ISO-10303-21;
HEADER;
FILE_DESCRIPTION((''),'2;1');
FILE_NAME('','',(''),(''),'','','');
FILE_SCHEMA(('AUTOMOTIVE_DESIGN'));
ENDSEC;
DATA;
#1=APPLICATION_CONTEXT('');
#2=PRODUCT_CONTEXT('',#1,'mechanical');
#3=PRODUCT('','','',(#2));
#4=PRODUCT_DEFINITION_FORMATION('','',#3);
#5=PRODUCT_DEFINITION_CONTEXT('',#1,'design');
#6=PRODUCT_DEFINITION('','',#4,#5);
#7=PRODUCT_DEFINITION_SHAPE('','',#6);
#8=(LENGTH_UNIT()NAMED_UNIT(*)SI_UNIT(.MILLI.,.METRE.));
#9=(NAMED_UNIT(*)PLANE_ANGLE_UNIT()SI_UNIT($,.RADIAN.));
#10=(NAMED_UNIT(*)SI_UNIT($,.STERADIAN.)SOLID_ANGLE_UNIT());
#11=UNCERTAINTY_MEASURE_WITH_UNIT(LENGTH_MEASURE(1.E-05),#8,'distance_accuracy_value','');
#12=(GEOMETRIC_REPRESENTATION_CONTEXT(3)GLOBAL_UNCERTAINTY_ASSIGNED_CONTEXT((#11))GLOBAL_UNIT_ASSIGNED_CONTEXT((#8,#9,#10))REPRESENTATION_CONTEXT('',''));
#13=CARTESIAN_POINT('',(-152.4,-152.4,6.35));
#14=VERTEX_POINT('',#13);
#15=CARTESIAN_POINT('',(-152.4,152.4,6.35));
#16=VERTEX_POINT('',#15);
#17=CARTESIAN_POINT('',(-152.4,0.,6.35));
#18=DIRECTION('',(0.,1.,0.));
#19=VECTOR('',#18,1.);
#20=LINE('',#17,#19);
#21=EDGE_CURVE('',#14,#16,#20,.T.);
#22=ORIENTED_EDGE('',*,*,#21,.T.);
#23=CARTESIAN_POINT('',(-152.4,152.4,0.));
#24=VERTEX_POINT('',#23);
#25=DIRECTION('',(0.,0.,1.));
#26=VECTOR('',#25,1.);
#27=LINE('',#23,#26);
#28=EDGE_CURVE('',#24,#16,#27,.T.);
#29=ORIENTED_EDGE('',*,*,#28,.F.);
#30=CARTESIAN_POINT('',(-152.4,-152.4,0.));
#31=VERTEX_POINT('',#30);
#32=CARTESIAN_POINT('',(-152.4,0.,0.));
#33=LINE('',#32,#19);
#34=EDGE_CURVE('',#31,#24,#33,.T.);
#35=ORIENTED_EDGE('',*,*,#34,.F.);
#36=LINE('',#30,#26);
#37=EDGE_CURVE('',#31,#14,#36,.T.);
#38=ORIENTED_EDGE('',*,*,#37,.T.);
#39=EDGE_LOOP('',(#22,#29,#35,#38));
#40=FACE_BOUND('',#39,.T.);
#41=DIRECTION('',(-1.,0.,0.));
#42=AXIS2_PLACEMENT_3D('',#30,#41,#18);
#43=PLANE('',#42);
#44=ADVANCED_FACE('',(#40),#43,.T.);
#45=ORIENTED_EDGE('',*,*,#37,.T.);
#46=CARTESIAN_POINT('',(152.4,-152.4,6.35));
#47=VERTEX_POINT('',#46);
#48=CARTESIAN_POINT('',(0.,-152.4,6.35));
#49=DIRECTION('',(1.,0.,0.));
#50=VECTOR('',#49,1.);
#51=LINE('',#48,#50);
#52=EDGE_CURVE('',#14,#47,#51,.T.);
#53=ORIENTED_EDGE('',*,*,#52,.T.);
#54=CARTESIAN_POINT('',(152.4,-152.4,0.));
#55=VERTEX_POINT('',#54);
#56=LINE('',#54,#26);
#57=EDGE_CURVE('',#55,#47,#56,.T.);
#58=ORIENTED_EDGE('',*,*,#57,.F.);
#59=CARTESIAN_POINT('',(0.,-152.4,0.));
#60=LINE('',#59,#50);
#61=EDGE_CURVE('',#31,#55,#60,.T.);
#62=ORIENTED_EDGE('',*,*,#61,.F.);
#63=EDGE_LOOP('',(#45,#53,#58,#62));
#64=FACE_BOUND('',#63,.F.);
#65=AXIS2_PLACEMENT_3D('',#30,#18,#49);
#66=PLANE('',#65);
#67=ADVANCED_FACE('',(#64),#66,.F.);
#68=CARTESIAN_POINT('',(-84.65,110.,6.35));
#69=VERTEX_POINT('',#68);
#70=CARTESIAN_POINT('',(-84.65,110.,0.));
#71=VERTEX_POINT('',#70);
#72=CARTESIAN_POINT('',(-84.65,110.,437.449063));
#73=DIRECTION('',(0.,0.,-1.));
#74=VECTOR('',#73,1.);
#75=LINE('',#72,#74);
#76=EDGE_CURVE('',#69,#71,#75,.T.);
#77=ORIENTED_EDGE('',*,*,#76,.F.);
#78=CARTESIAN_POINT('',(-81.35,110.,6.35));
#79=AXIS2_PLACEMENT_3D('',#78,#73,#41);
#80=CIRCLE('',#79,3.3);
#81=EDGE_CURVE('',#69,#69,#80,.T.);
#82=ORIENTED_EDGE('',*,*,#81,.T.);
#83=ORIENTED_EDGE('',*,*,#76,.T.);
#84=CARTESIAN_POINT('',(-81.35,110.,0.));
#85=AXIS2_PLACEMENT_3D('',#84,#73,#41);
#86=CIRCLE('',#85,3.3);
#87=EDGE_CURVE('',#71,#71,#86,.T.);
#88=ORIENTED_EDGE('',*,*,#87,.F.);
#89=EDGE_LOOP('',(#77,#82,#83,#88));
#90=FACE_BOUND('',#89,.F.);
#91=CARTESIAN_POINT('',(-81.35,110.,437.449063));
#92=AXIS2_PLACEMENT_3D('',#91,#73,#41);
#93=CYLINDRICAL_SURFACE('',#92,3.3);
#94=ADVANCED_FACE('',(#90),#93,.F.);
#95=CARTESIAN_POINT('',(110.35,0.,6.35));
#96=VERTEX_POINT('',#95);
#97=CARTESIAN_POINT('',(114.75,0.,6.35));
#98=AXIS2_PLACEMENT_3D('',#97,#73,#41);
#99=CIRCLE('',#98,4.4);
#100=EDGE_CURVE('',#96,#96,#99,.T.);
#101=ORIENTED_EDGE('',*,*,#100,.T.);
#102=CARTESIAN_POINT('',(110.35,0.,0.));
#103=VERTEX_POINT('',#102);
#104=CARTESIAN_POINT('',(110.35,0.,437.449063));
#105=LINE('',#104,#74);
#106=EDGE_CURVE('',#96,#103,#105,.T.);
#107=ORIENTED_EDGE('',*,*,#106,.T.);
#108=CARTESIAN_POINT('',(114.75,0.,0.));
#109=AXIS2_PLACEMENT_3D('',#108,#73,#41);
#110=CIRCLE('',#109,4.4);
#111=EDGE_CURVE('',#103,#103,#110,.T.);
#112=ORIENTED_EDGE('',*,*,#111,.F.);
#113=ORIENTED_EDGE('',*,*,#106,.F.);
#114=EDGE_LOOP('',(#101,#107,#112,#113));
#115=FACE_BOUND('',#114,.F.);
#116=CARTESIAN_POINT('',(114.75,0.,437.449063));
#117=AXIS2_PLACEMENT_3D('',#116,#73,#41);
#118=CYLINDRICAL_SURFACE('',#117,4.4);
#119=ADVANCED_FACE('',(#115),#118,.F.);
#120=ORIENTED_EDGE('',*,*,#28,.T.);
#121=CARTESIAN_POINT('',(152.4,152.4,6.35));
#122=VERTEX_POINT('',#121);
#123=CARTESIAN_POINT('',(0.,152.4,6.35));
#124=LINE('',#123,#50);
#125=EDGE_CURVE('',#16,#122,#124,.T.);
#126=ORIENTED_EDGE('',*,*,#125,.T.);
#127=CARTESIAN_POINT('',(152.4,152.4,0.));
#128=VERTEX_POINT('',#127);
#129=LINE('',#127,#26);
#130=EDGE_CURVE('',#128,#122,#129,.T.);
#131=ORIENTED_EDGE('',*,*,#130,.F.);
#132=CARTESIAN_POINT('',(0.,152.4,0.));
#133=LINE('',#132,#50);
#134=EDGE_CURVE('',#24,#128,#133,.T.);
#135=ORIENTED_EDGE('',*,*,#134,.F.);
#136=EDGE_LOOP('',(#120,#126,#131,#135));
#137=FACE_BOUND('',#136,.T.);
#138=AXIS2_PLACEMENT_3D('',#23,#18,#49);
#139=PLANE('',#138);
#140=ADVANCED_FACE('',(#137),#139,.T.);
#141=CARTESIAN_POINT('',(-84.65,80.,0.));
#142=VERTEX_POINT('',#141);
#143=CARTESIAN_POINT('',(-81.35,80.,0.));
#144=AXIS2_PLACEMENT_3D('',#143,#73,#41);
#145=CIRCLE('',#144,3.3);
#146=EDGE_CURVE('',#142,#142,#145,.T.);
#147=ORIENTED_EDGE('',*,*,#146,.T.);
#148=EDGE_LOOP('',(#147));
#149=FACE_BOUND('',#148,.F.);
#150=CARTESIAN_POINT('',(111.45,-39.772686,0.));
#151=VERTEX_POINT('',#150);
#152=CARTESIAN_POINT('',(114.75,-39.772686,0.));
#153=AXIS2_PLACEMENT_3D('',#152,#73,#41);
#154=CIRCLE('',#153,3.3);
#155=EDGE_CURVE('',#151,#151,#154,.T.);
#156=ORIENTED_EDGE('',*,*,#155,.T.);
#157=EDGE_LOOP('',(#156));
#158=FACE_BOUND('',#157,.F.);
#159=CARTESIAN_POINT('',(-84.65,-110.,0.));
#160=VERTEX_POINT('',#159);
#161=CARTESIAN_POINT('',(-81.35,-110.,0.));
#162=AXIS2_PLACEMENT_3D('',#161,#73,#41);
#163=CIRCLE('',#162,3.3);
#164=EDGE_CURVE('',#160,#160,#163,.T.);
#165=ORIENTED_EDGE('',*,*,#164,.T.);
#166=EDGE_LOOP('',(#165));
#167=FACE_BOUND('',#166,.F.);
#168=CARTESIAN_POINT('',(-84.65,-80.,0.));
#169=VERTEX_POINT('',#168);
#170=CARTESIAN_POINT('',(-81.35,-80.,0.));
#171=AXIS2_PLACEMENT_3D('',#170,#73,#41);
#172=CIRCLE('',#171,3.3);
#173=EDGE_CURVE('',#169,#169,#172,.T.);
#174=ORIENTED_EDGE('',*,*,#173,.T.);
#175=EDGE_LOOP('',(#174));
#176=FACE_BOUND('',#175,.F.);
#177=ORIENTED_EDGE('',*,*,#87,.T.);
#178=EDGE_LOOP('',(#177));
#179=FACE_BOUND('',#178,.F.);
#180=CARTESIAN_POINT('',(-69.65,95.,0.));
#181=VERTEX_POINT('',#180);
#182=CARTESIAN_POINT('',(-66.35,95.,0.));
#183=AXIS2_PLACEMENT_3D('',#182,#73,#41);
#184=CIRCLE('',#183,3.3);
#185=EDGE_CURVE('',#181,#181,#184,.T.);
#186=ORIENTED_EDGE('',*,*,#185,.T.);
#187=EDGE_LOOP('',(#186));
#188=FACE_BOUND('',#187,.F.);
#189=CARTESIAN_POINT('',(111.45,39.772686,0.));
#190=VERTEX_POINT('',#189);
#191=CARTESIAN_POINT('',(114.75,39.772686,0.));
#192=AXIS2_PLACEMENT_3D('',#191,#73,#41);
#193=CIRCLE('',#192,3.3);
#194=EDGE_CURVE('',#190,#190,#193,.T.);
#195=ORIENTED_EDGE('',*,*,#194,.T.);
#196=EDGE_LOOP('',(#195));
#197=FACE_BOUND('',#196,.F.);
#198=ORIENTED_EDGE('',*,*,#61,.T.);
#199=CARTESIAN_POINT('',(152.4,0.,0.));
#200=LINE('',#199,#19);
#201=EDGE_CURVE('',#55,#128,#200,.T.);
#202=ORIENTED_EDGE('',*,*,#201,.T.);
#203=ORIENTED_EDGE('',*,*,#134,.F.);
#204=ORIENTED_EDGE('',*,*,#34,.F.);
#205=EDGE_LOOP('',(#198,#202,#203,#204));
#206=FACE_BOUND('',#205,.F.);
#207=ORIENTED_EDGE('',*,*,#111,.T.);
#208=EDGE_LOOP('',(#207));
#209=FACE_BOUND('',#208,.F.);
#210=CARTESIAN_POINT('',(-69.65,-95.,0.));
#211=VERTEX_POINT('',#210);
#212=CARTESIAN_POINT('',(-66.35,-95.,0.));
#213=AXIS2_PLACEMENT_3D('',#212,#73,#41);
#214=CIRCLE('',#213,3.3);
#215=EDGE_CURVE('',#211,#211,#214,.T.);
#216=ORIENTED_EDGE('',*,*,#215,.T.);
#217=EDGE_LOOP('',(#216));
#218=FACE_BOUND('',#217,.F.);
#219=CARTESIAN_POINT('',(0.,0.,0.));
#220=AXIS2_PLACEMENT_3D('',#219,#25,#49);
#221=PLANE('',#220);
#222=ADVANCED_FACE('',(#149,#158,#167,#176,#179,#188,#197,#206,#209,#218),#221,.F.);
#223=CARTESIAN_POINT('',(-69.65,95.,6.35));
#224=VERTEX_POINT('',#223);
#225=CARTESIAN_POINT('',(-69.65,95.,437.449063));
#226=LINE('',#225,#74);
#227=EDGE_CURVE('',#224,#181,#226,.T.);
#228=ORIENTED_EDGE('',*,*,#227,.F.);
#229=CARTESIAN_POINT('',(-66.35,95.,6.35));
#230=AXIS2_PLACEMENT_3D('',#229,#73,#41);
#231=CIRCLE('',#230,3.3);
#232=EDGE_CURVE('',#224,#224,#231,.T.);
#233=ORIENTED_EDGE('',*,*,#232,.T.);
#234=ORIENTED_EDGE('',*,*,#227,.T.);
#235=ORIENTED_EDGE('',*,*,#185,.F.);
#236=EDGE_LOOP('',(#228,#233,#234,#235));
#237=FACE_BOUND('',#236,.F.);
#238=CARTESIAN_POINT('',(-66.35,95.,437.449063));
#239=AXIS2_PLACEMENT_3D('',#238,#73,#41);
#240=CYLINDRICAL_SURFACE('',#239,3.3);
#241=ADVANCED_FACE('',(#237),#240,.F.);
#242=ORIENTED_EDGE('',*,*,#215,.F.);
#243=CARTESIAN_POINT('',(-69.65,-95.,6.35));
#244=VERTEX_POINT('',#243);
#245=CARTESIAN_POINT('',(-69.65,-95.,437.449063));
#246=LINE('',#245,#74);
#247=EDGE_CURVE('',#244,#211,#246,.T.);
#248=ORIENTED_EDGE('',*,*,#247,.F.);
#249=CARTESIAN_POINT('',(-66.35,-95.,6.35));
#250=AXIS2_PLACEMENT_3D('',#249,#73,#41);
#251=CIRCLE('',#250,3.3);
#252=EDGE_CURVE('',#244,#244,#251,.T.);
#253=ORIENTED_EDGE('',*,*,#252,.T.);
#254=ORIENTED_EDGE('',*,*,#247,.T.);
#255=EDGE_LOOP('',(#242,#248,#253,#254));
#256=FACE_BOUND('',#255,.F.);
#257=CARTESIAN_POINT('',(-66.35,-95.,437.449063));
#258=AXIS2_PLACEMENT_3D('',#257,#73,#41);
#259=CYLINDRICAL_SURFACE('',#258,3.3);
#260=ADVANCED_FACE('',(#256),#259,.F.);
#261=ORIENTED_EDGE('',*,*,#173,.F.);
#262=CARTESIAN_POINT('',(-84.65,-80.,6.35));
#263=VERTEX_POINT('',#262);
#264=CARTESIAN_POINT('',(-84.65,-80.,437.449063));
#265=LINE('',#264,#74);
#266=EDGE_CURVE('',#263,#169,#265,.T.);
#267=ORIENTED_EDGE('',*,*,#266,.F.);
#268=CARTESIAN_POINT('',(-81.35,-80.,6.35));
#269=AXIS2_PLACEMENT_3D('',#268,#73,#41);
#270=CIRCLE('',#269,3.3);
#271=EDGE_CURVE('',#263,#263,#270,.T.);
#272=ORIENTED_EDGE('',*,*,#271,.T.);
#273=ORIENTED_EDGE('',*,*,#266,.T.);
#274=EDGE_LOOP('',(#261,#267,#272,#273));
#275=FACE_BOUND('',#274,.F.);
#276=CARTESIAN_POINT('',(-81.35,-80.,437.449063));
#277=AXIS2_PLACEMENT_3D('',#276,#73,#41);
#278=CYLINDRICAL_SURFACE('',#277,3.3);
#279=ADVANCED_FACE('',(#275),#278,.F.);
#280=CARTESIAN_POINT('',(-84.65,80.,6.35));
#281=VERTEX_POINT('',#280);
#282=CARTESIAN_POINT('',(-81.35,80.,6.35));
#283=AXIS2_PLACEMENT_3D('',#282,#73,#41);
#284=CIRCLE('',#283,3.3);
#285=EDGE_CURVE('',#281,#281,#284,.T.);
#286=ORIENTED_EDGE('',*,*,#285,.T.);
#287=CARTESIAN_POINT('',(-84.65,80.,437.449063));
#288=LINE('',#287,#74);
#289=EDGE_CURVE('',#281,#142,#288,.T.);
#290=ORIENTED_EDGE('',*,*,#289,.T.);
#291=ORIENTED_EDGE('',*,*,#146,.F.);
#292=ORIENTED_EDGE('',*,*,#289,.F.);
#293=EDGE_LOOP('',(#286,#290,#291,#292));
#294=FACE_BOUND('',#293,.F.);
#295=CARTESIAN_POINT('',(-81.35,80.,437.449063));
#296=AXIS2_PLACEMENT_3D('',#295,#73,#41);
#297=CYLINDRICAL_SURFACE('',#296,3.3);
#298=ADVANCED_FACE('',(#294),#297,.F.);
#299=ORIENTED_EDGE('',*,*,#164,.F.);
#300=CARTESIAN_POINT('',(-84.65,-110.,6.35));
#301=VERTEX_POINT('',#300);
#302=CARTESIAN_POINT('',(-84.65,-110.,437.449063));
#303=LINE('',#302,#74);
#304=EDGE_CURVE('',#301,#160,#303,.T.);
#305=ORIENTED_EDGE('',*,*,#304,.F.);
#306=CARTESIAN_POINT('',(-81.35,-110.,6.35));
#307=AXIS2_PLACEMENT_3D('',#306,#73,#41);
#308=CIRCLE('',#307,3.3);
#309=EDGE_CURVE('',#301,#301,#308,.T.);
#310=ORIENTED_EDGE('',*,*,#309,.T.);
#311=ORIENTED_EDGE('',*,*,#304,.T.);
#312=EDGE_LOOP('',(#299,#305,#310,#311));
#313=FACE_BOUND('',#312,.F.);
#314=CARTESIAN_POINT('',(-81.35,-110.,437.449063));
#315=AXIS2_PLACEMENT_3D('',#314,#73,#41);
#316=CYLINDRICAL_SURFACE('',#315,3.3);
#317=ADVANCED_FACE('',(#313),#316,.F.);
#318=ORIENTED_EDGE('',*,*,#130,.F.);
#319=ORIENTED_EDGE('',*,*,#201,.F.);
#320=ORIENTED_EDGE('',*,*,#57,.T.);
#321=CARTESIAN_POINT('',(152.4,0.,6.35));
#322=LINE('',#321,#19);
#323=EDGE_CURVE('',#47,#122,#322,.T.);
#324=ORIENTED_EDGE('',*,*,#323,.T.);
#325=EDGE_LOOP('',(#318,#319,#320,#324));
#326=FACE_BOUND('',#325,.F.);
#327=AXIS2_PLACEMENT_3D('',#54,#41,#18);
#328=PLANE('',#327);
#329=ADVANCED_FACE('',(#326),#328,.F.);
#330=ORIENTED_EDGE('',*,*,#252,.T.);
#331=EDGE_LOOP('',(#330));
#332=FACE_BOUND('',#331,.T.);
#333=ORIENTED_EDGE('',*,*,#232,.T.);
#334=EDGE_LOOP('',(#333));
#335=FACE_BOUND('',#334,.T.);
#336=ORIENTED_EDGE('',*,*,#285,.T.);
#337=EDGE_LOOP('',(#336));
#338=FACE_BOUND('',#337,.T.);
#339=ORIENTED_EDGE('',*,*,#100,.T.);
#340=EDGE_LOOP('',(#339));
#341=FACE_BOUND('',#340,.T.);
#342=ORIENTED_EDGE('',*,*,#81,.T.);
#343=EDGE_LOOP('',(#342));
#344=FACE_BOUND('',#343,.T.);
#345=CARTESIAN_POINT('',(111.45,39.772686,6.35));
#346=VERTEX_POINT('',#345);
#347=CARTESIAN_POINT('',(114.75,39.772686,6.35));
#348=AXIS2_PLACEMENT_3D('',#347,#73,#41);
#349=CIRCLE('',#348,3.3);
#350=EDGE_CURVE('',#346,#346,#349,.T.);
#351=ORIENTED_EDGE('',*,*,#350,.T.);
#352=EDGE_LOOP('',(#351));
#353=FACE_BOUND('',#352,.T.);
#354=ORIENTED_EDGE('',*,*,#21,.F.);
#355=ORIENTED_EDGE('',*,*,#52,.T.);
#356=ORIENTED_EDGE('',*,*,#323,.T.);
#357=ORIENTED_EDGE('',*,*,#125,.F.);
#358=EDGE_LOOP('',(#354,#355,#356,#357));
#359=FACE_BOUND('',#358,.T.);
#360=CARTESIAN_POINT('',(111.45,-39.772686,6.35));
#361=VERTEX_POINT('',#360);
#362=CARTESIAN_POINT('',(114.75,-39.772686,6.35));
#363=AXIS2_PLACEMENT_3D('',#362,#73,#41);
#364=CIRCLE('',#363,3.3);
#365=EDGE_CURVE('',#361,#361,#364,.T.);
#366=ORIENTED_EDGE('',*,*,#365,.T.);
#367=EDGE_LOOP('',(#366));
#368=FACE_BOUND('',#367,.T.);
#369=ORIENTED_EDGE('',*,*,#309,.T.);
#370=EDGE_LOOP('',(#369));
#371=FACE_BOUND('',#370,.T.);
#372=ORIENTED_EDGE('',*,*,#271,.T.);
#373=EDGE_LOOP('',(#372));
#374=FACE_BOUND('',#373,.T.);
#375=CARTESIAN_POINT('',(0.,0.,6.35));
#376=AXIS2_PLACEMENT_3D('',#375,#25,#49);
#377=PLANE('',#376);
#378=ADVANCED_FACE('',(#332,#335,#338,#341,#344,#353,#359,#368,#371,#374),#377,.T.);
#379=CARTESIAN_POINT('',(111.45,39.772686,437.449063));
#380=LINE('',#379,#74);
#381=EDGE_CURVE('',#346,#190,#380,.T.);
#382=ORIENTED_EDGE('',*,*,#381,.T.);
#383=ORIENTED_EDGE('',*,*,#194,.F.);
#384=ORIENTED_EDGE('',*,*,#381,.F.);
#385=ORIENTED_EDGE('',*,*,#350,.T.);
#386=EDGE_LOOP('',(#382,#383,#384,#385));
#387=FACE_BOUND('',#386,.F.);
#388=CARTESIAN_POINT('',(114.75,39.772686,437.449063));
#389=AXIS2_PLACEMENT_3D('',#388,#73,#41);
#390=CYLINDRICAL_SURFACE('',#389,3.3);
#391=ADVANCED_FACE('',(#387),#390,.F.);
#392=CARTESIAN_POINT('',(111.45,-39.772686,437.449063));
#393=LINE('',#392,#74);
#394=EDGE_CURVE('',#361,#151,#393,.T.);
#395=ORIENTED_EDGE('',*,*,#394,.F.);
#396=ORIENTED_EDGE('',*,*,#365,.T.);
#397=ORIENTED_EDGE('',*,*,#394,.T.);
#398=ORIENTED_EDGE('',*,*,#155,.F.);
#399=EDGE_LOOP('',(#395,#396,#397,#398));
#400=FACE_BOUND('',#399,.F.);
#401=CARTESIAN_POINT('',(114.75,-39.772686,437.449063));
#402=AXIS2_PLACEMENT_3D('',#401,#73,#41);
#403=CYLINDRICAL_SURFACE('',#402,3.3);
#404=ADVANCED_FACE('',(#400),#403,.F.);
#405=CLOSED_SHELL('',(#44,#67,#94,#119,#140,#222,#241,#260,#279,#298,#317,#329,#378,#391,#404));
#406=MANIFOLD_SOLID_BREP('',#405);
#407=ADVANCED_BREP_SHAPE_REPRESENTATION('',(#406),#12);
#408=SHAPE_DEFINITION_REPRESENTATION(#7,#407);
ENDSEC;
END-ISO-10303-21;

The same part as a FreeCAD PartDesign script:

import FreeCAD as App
import Part
import Sketcher
Q = App.Units.Quantity

doc = App.newDocument("Part")
body = doc.addObject("PartDesign::Body", "Body")

# Sketch on XY plane
sketch1 = doc.addObject("Sketcher::SketchObject", "Sketch")
body.addObject(sketch1)
sketch1.AttachmentSupport = (doc.XY_Plane, [""])
sketch1.MapMode = "FlatFace"
sketch1.addGeometry([
    Part.LineSegment(App.Vector(-152, 152, 0), App.Vector(-152, -152, 0)),
    Part.LineSegment(App.Vector(-152, -152, 0), App.Vector(152, -152, 0)),
    Part.LineSegment(App.Vector(152, -152, 0), App.Vector(152, 152, 0)),
    Part.LineSegment(App.Vector(152, 152, 0), App.Vector(-152, 152, 0)),
], False)
sketch1.addConstraint([
    Sketcher.Constraint("Coincident", 0, 2, 1, 1),
    Sketcher.Constraint("Coincident", 1, 2, 2, 1),
    Sketcher.Constraint("Coincident", 2, 2, 3, 1),
    Sketcher.Constraint("Coincident", 3, 2, 0, 1),
    Sketcher.Constraint("Vertical", 0),
    Sketcher.Constraint("Horizontal", 1),
    Sketcher.Constraint("Vertical", 2),
    Sketcher.Constraint("Horizontal", 3),
    Sketcher.Constraint("Symmetric", 0, 2, 2, 2, -1, 1),
    Sketcher.Constraint("Equal", 3, 0),
    Sketcher.Constraint("DistanceX", 1, 1, 1, 2, Q("304.8 mm")),
])
pad1 = doc.addObject("PartDesign::Pad", "Pad")
body.addObject(pad1)
pad1.Profile = sketch1
pad1.Length = 6.35

# Sketch on XY plane
sketch2 = doc.addObject("Sketcher::SketchObject", "Sketch001")
body.addObject(sketch2)
sketch2.AttachmentSupport = (doc.XY_Plane, [""])
sketch2.MapMode = "FlatFace"
sketch2.AttachmentOffset = App.Placement(App.Vector(0, 0, 6.35), App.Rotation())
sketch2.addGeometry([
    Part.Circle(App.Vector(-81.3, -110, 0), App.Vector(0, 0, 1), 3.3),  # 0
    Part.Circle(App.Vector(-66.3, -95, 0), App.Vector(0, 0, 1), 3.3),  # 1
    Part.Circle(App.Vector(-81.3, -80, 0), App.Vector(0, 0, 1), 3.3),  # 2
    Part.Circle(App.Vector(-81.3, 80, 0), App.Vector(0, 0, 1), 3.3),  # 3
    Part.Circle(App.Vector(-66.3, 95, 0), App.Vector(0, 0, 1), 3.3),  # 4
    Part.Circle(App.Vector(-81.3, 110, 0), App.Vector(0, 0, 1), 3.3),  # 5
    Part.Circle(App.Vector(114.8, 39.8, 0), App.Vector(0, 0, 1), 3.3),  # 6
    Part.Circle(App.Vector(114.8, -39.8, 0), App.Vector(0, 0, 1), 3.3),  # 7
], False)
sketch2.addConstraint([
    Sketcher.Constraint("Equal", 0, 1),
    Sketcher.Constraint("Equal", 1, 2),
    Sketcher.Constraint("Equal", 2, 3),
    Sketcher.Constraint("Equal", 3, 4),
    Sketcher.Constraint("Equal", 4, 5),
    Sketcher.Constraint("Equal", 5, 6),
    Sketcher.Constraint("Equal", 6, 7),
    Sketcher.Constraint("Symmetric", 2, 3, 3, 3, -1),
    Sketcher.Constraint("Symmetric", 1, 3, 4, 3, -1),
    Sketcher.Constraint("Symmetric", 0, 3, 5, 3, -1),
    Sketcher.Constraint("Symmetric", 6, 3, 7, 3, -1),
    Sketcher.Constraint("Vertical", 0, 3, 2, 3),
    Sketcher.Constraint("Diameter", 0, Q("6.6 mm")),
    Sketcher.Constraint("DistanceY", 0, 3, -1, 1, Q("110 mm")),
    Sketcher.Constraint("DistanceY", 1, 3, -1, 1, Q("95 mm")),
    Sketcher.Constraint("DistanceY", 2, 3, -1, 1, Q("80 mm")),
    Sketcher.Constraint("DistanceX", 0, 3, 1, 3, Q("15 mm")),
    Sketcher.Constraint("DistanceX", 4, 3, 6, 3, Q("181.1 mm")),
    Sketcher.Constraint("DistanceX", 0, 3, -1, 1, Q("81.35 mm")),
    Sketcher.Constraint("DistanceY", 7, 3, 6, 3, Q("79.545371 mm")),
])
doc.recompute()
hole = doc.addObject("PartDesign::Hole", "Hole")
body.addObject(hole)
hole.Profile = sketch2
hole.ThreadType = "None"
hole.Diameter = 6.6
hole.DepthType = "ThroughAll"

# Sketch on XY plane
sketch3 = doc.addObject("Sketcher::SketchObject", "Sketch002")
body.addObject(sketch3)
sketch3.AttachmentSupport = (doc.XY_Plane, [""])
sketch3.MapMode = "FlatFace"
sketch3.AttachmentOffset = App.Placement(App.Vector(0, 0, 6.35), App.Rotation())
sketch3.addGeometry(Part.Circle(App.Vector(114.8, 0, 0), App.Vector(0, 0, 1), 4.4), False)
sketch3.addConstraint([
    Sketcher.Constraint("PointOnObject", 0, 3, -1),
    Sketcher.Constraint("Diameter", 0, Q("8.8 mm")),
    Sketcher.Constraint("DistanceX", -1, 1, 0, 3, Q("114.75 mm")),
])
doc.recompute()
hole2 = doc.addObject("PartDesign::Hole", "Hole001")
body.addObject(hole2)
hole2.Profile = sketch3
hole2.ThreadType = "None"
hole2.Diameter = 8.8
hole2.DepthType = "ThroughAll"

doc.recompute()
